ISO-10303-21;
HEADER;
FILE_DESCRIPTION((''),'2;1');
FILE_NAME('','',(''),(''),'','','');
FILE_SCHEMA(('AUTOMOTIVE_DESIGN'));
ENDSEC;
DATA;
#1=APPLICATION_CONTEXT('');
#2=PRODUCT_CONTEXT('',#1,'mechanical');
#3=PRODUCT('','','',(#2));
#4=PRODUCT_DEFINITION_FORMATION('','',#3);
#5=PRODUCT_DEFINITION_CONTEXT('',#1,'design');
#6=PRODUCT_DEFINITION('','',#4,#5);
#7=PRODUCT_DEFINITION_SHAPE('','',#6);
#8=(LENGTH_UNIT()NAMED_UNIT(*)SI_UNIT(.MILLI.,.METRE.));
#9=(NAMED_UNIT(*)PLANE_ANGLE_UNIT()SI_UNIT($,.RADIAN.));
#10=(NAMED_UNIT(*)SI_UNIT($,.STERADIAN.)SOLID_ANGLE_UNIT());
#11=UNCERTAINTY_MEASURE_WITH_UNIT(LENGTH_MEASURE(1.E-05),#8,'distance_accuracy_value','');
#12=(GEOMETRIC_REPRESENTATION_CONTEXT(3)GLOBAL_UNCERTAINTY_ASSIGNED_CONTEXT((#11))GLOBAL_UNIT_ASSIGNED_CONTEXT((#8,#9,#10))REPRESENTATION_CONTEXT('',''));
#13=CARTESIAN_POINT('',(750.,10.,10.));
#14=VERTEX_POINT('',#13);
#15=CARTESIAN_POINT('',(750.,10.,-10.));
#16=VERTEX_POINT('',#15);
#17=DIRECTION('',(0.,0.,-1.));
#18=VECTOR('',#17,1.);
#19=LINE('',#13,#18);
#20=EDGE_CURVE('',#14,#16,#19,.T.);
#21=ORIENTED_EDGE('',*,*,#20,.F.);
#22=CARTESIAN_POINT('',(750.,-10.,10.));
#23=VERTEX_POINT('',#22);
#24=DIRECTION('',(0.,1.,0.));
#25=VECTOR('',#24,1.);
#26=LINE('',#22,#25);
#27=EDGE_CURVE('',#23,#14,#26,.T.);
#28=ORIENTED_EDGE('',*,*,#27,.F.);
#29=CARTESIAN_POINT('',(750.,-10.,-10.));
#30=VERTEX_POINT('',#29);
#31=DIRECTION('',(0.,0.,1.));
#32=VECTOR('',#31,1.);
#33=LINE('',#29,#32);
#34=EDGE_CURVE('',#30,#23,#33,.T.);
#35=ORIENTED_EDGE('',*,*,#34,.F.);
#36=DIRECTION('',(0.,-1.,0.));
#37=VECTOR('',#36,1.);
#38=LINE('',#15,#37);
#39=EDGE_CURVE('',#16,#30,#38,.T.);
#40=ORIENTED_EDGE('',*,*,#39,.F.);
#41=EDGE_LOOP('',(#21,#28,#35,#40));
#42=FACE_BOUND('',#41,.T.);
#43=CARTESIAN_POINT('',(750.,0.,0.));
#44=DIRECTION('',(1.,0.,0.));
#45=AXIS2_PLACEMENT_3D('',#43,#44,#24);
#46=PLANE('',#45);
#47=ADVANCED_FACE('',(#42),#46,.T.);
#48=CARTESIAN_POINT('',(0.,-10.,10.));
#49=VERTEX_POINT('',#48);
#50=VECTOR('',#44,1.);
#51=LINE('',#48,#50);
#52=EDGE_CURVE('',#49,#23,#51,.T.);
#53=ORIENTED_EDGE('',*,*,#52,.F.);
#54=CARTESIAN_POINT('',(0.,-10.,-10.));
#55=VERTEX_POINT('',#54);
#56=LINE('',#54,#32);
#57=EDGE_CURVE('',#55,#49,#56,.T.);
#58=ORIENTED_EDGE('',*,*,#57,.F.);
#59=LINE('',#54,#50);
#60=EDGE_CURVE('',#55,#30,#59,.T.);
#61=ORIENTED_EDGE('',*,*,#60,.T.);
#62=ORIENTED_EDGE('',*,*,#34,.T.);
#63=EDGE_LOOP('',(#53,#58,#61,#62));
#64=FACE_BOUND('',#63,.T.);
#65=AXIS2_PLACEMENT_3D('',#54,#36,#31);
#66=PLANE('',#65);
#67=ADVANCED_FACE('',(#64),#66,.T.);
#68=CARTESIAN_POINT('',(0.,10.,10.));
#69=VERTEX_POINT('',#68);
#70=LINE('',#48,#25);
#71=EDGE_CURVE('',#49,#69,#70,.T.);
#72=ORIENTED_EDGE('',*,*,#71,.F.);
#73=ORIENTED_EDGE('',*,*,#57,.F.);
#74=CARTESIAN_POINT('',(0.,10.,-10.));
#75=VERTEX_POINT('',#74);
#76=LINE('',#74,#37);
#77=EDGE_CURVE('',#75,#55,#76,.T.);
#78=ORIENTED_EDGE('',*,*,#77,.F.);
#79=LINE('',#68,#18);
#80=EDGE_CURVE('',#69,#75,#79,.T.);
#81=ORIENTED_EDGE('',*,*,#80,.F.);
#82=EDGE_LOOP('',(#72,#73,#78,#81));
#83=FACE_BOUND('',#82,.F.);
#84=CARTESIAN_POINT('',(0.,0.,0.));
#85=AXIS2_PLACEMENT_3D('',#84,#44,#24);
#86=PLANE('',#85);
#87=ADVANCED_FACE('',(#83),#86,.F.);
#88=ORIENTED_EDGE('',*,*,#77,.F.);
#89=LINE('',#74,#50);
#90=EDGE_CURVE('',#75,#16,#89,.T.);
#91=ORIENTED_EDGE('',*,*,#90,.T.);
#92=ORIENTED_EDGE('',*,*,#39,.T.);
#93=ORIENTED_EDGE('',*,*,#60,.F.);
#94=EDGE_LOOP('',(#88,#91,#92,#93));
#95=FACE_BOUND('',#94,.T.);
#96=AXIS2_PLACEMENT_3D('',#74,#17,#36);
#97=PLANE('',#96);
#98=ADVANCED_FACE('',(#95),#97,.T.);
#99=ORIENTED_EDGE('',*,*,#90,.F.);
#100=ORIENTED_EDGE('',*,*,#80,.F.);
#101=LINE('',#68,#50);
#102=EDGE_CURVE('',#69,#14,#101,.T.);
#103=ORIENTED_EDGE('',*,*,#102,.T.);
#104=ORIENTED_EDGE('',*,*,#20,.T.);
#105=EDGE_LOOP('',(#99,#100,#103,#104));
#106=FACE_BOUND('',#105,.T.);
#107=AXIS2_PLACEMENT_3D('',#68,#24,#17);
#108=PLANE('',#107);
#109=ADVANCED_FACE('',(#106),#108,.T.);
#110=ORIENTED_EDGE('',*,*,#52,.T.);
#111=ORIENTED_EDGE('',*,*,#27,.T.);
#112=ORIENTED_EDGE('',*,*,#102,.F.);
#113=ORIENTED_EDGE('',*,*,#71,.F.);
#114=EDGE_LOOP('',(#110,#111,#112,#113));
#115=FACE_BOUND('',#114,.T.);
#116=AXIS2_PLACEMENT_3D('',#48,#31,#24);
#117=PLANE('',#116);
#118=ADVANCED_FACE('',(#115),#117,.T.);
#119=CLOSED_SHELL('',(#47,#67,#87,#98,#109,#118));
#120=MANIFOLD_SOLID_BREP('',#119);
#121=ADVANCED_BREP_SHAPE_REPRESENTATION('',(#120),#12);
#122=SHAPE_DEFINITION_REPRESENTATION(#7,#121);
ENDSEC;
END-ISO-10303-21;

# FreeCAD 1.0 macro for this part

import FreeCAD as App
import Part
import Sketcher
from FreeCAD import Vector

doc = App.newDocument("Part")
params = doc.addObject("Spreadsheet::Sheet", "Params")
for row, (alias, value) in enumerate([
    ("sketch1_width", "20 mm"),
    ("pad1_length", "750 mm"),
], start=1):
    params.set(f"A{row}", alias)
    params.set(f"B{row}", "=" + value)
    params.setAlias(f"B{row}", alias)

body = doc.addObject("PartDesign::Body", "Body")

# Sketch on YZ plane
sketch1 = body.newObject("Sketcher::SketchObject", "Sketch")
sketch1.AttachmentSupport = (doc.getObject("YZ_Plane"), [""])
sketch1.MapMode = "FlatFace"
sketch1.addGeometry(Part.LineSegment(Vector(-10, -10, 0), Vector(10, -10, 0)), False)
sketch1.addGeometry(Part.LineSegment(Vector(10, -10, 0), Vector(10, 10, 0)), False)
sketch1.addGeometry(Part.LineSegment(Vector(10, 10, 0), Vector(-10, 10, 0)), False)
sketch1.addGeometry(Part.LineSegment(Vector(-10, 10, 0), Vector(-10, -10, 0)), False)
sketch1.addConstraint(Sketcher.Constraint("Coincident", 0, 2, 1, 1))
sketch1.addConstraint(Sketcher.Constraint("Coincident", 1, 2, 2, 1))
sketch1.addConstraint(Sketcher.Constraint("Coincident", 2, 2, 3, 1))
sketch1.addConstraint(Sketcher.Constraint("Coincident", 3, 2, 0, 1))
sketch1.addConstraint(Sketcher.Constraint("Horizontal", 0))
sketch1.addConstraint(Sketcher.Constraint("Vertical", 1))
sketch1.addConstraint(Sketcher.Constraint("Horizontal", 2))
sketch1.addConstraint(Sketcher.Constraint("Vertical", 3))
sketch1.addConstraint(Sketcher.Constraint("Symmetric", 0, 2, 2, 2, -1, 1))
sketch1.addConstraint(Sketcher.Constraint("Equal", 2, 1))
sketch1.addConstraint(Sketcher.Constraint("DistanceX", 0, 1, 0, 2, 20.0))
sketch1.setExpression("Constraints[10]", "Params.sketch1_width")
pad1 = body.newObject("PartDesign::Pad", "Pad")
pad1.Profile = sketch1
pad1.setExpression("Length", "Params.pad1_length")

doc.recompute()
